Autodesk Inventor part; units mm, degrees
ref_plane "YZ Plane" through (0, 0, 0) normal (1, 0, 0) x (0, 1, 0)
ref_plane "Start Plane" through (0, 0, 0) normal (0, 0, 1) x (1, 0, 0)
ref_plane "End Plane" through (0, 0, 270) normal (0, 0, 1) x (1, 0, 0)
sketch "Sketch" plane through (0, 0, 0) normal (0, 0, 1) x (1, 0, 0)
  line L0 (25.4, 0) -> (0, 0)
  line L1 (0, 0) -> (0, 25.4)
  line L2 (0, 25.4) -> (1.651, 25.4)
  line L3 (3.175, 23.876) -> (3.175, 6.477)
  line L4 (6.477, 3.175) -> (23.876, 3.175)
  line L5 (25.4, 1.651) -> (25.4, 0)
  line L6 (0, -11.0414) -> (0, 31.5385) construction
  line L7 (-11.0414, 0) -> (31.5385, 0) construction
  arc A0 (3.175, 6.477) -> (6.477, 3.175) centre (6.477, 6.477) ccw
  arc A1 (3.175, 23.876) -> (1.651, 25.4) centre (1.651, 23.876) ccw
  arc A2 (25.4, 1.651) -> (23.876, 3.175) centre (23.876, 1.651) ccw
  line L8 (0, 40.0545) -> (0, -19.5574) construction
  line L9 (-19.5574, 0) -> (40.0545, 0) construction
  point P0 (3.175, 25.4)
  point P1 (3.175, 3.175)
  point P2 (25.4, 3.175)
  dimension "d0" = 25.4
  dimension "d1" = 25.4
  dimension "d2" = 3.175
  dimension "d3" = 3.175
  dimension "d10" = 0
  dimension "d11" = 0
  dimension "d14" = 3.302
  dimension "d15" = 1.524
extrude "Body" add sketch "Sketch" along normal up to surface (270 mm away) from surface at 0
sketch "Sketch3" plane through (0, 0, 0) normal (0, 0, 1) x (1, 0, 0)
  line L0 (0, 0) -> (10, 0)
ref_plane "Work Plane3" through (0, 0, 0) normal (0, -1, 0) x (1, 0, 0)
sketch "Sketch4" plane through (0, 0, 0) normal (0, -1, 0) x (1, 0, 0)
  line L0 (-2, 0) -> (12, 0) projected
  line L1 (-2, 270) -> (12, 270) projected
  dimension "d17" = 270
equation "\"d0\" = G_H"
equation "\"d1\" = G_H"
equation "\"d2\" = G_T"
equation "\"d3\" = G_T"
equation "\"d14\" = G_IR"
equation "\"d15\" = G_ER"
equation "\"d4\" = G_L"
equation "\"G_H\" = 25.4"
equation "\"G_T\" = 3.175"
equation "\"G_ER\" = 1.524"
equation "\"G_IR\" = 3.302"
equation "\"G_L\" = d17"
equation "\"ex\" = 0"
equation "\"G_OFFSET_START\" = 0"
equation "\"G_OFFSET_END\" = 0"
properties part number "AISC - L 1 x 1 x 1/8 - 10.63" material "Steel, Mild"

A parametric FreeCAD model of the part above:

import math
import FreeCAD as App
import Part
import Sketcher
Q = App.Units.Quantity

doc = App.newDocument("Part")
body = doc.addObject("PartDesign::Body", "Body")

sketch1 = body.newObject("Sketcher::SketchObject", "Sketch")
sketch1.AttachmentSupport = (doc.getObject("XY_Plane"), [""])
sketch1.MapMode = "FlatFace"
sketch1.addGeometry([
    Part.LineSegment(App.Vector(0, 0, 0), App.Vector(25.4, 0, 0)),
    Part.LineSegment(App.Vector(25.4, 0, 0), App.Vector(25.4, 1.7, 0)),
    Part.ArcOfCircle(Part.Circle(App.Vector(23.9, 1.7, 0), App.Vector(0, 0, 1), 1.5), math.radians(0), math.radians(90)),
    Part.LineSegment(App.Vector(23.9, 3.2, 0), App.Vector(6.5, 3.2, 0)),
    Part.ArcOfCircle(Part.Circle(App.Vector(6.5, 6.5, 0), App.Vector(0, 0, 1), 3.3), math.radians(180), math.radians(270)),
    Part.LineSegment(App.Vector(3.2, 6.5, 0), App.Vector(3.2, 23.9, 0)),
    Part.ArcOfCircle(Part.Circle(App.Vector(1.7, 23.9, 0), App.Vector(0, 0, 1), 1.5), math.radians(0), math.radians(90)),
    Part.LineSegment(App.Vector(1.7, 25.4, 0), App.Vector(0, 25.4, 0)),
    Part.LineSegment(App.Vector(0, 25.4, 0), App.Vector(0, 0, 0)),
], False)
sketch1.addConstraint([
    Sketcher.Constraint("Coincident", 0, 2, 1, 1),
    Sketcher.Constraint("Tangent", 1, 2, 2, 1),
    Sketcher.Constraint("Tangent", 2, 2, 3, 1),
    Sketcher.Constraint("Tangent", 3, 2, 4, 2),
    Sketcher.Constraint("Tangent", 4, 1, 5, 1),
    Sketcher.Constraint("Tangent", 5, 2, 6, 1),
    Sketcher.Constraint("Tangent", 6, 2, 7, 1),
    Sketcher.Constraint("Coincident", 7, 2, 8, 1),
    Sketcher.Constraint("Coincident", 8, 2, 0, 1),
    Sketcher.Constraint("Horizontal", 0),
    Sketcher.Constraint("Vertical", 1),
    Sketcher.Constraint("Horizontal", 3),
    Sketcher.Constraint("Vertical", 5),
    Sketcher.Constraint("Horizontal", 7),
    Sketcher.Constraint("Vertical", 8),
    Sketcher.Constraint("Coincident", 8, 2, -1, 1),
    Sketcher.Constraint("Equal", 2, 6),
    Sketcher.Constraint("Equal", 7, 1),
    Sketcher.Constraint("Equal", 3, 5),
    Sketcher.Constraint("DistanceX", 0, 1, 0, 2, Q("1 in")),
    Sketcher.Constraint("Radius", 2, Q("0.06 in")),
    Sketcher.Constraint("Radius", 4, Q("0.13 in")),
    Sketcher.Constraint("DistanceY", -1, 1, 2, 2, Q("0.125 in")),
])
pad1 = body.newObject("PartDesign::Pad", "Pad")
pad1.Profile = sketch1
pad1.Length = 270

doc.recompute()
